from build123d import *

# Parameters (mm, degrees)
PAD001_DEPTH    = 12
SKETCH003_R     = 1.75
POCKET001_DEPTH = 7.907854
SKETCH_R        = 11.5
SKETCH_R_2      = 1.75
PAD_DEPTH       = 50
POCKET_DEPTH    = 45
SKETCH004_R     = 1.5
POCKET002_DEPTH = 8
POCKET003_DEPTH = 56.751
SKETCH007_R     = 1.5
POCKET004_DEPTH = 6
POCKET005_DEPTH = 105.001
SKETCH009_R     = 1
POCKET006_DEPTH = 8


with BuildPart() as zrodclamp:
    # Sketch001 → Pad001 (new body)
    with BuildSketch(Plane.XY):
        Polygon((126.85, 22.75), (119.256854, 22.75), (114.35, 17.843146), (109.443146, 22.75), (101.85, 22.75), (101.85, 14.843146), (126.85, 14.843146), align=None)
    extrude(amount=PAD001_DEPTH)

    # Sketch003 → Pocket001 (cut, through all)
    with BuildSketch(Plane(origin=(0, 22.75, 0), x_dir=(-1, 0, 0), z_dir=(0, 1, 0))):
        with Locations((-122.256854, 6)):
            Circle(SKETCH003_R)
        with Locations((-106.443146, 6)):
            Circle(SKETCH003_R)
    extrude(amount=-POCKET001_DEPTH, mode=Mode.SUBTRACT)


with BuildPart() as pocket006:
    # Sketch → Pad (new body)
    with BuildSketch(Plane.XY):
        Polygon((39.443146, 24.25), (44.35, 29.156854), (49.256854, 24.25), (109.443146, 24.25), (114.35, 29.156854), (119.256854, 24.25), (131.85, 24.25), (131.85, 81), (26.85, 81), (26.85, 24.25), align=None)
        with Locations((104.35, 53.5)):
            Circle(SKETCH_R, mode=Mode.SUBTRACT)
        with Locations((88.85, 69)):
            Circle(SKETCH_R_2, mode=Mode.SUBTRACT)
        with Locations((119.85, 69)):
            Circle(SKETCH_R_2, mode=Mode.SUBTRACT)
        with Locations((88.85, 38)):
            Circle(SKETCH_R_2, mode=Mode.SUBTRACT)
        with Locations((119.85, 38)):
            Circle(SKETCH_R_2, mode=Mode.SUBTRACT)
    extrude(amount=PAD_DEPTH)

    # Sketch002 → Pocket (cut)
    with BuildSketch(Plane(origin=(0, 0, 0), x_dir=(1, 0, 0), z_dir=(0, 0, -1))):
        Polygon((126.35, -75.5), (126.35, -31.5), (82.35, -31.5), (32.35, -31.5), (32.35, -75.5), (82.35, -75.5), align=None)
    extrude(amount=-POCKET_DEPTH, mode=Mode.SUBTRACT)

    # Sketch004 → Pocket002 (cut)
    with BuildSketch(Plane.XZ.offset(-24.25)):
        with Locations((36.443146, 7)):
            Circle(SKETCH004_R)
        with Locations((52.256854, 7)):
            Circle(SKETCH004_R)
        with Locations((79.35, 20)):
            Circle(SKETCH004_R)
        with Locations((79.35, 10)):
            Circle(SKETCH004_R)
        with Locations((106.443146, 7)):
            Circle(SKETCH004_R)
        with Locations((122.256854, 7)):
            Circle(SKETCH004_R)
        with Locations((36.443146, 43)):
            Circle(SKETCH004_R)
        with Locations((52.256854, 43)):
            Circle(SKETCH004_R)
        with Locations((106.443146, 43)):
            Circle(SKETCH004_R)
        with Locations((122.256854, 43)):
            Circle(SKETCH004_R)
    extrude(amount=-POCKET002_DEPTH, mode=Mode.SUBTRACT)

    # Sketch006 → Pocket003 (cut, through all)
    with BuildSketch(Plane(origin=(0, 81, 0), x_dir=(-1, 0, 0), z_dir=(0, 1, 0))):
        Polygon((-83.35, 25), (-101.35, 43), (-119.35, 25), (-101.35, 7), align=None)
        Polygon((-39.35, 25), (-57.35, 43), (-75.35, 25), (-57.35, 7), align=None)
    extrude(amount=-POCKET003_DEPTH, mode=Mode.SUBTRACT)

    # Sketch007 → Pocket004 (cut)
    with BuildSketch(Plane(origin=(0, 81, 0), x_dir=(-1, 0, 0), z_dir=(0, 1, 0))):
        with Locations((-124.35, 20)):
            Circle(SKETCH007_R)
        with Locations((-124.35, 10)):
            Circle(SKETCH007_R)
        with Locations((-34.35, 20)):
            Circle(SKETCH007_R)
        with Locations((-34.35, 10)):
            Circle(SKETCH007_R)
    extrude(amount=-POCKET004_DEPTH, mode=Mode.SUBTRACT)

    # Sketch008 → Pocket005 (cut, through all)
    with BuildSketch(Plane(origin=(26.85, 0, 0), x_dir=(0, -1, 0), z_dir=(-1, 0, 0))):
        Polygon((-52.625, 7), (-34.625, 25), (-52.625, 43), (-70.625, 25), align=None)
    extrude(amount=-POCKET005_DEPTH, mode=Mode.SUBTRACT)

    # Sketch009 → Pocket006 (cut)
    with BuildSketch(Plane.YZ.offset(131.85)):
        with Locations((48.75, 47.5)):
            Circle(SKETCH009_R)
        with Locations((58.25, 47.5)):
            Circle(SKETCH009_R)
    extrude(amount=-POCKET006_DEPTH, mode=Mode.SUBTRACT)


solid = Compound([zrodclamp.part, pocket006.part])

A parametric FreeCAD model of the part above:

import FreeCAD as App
import Part
import Sketcher
from FreeCAD import Vector
Q = App.Units.Quantity


def add_polygon(sketch, points):
    """Adds a closed chain of lines whose ends are joined by coincident constraints."""
    first, n = sketch.GeometryCount, len(points)
    for a, b in zip(points, points[1:] + points[:1]):
        sketch.addGeometry(Part.LineSegment(App.Vector(*a, 0), App.Vector(*b, 0)), False)
    for i in range(n):
        sketch.addConstraint(Sketcher.Constraint("Coincident", first + i, 2, first + (i + 1) % n, 1))

doc = App.newDocument("Part")
body = doc.addObject("PartDesign::Body", "Body")

sketch1 = body.newObject("Sketcher::SketchObject", "Sketch")
sketch1.AttachmentSupport = (doc.getObject("XY_Plane"), [""])
sketch1.MapMode = "FlatFace"
add_polygon(sketch1, [(126.85, 22.75), (119.256854, 22.75), (114.35, 17.843146), (109.443146, 22.75), (101.85, 22.75), (101.85, 14.843146), (126.85, 14.843146)])
sketch1.addConstraint(Sketcher.Constraint("Horizontal", 0))
sketch1.addConstraint(Sketcher.Constraint("Horizontal", 3))
sketch1.addConstraint(Sketcher.Constraint("Vertical", 4))
sketch1.addConstraint(Sketcher.Constraint("Horizontal", 5))
sketch1.addConstraint(Sketcher.Constraint("Vertical", 6))
sketch1.addConstraint(Sketcher.Constraint("Perpendicular", 1, 2))
sketch1.addConstraint(Sketcher.Constraint("Horizontal", 0, 2, 2, 2))
sketch1.addConstraint(Sketcher.Constraint("Equal", 0, 3))
sketch1.addConstraint(Sketcher.Constraint("Equal", 1, 2))
sketch1.addConstraint(Sketcher.Constraint("DistanceX", 5, 1, 5, 2, Q("25 mm")))
sketch1.addConstraint(Sketcher.Constraint("DistanceY", 4, 2, 1, 2, Q("3 mm")))
sketch1.addConstraint(Sketcher.Constraint("DistanceY", -1, 1, 0, 2, Q("22.75 mm")))
sketch1.addConstraint(Sketcher.Constraint("DistanceX", -1, 1, 1, 2, Q("114.35 mm")))
sketch1.addConstraint(Sketcher.Constraint("Distance", 1, Q("6.939339 mm")))
pad1 = body.newObject("PartDesign::Pad", "Pad")
pad1.Profile = sketch1
pad1.Length = 12

sketch2 = body.newObject("Sketcher::SketchObject", "Sketch001")
sketch2.AttachmentSupport = (doc.getObject("XZ_Plane"), [""])
sketch2.MapMode = "FlatFace"
sketch2.AttachmentOffset = App.Placement(Vector(0, 0, -22.75), App.Rotation())
sketch2.addGeometry(Part.Circle(Vector(122.256854, 6, 0), Vector(0, 0, 1), 1.75), False)
sketch2.addGeometry(Part.Circle(Vector(106.443146, 6, 0), Vector(0, 0, 1), 1.75), False)
sketch2.addConstraint(Sketcher.Constraint("Equal", 0, 1))
sketch2.addConstraint(Sketcher.Constraint("Horizontal", 0, 3, 1, 3))
sketch2.addConstraint(Sketcher.Constraint("Diameter", 0, Q("3.5 mm")))
sketch2.addConstraint(Sketcher.Constraint("DistanceY", -1, 1, 0, 3, Q("6 mm")))
sketch2.addConstraint(Sketcher.Constraint("DistanceX", 1, 3, 0, 3, Q("15.813708 mm")))
sketch2.addConstraint(Sketcher.Constraint("DistanceX", -1, 1, 0, 3, Q("122.256854 mm")))
pocket1 = body.newObject("PartDesign::Pocket", "Pocket")
pocket1.Profile = sketch2
pocket1.Type = "ThroughAll"
pocket1.Reversed = True
body2 = doc.addObject("PartDesign::Body", "Body001")

sketch3 = body2.newObject("Sketcher::SketchObject", "Sketch002")
sketch3.AttachmentSupport = (doc.getObject("XY_Plane001"), [""])
sketch3.MapMode = "FlatFace"
add_polygon(sketch3, [(39.443146, 24.25), (44.35, 29.156854), (49.256854, 24.25), (109.443146, 24.25), (114.35, 29.156854), (119.256854, 24.25), (131.85, 24.25), (131.85, 81), (26.85, 81), (26.85, 24.25)])
sketch3.addGeometry(Part.Circle(Vector(88.85, 38, 0), Vector(0, 0, 1), 1.75), False)
sketch3.addGeometry(Part.Circle(Vector(119.85, 38, 0), Vector(0, 0, 1), 1.75), False)
sketch3.addGeometry(Part.Circle(Vector(88.85, 69, 0), Vector(0, 0, 1), 1.75), False)
sketch3.addGeometry(Part.Circle(Vector(104.35, 53.5, 0), Vector(0, 0, 1), 11.5), False)
sketch3.addGeometry(Part.Circle(Vector(119.85, 69, 0), Vector(0, 0, 1), 1.75), False)
sketch3.addConstraint(Sketcher.Constraint("Horizontal", 2))
sketch3.addConstraint(Sketcher.Constraint("Horizontal", 5))
sketch3.addConstraint(Sketcher.Constraint("Vertical", 6))
sketch3.addConstraint(Sketcher.Constraint("Horizontal", 7))
sketch3.addConstraint(Sketcher.Constraint("Vertical", 8))
sketch3.addConstraint(Sketcher.Constraint("Horizontal", 9))
sketch3.addConstraint(Sketcher.Constraint("Equal", 10, 11))
sketch3.addConstraint(Sketcher.Constraint("Equal", 11, 12))
sketch3.addConstraint(Sketcher.Constraint("Equal", 12, 14))
sketch3.addConstraint(Sketcher.Constraint("Perpendicular", 0, 1))
sketch3.addConstraint(Sketcher.Constraint("Perpendicular", 1, 3))
sketch3.addConstraint(Sketcher.Constraint("Perpendicular", 3, 4))
sketch3.addConstraint(Sketcher.Constraint("Horizontal", 10, 3, 11, 3))
sketch3.addConstraint(Sketcher.Constraint("Horizontal", 12, 3, 14, 3))
sketch3.addConstraint(Sketcher.Constraint("Horizontal", 0, 2, 3, 2))
sketch3.addConstraint(Sketcher.Constraint("Horizontal", 2, 2, 4, 2))
sketch3.addConstraint(Sketcher.Constraint("Horizontal", 5, 2, 8, 2))
sketch3.addConstraint(Sketcher.Constraint("Vertical", 10, 3, 12, 3))
sketch3.addConstraint(Sketcher.Constraint("Vertical", 11, 3, 14, 3))
sketch3.addConstraint(Sketcher.Constraint("Equal", 5, 9))
sketch3.addConstraint(Sketcher.Constraint("Equal", 0, 1))
sketch3.addConstraint(Sketcher.Constraint("Diameter", 13, Q("23 mm")))
sketch3.addConstraint(Sketcher.Constraint("Diameter", 10, Q("3.5 mm")))
sketch3.addConstraint(Sketcher.Constraint("DistanceX", 7, 2, 7, 1, Q("105 mm")))
sketch3.addConstraint(Sketcher.Constraint("DistanceY", -1, 1, 10, 3, Q("38 mm")))
sketch3.addConstraint(Sketcher.Constraint("DistanceY", -1, 1, 12, 3, Q("69 mm")))
sketch3.addConstraint(Sketcher.Constraint("DistanceY", -1, 1, 6, 2, Q("81 mm")))
sketch3.addConstraint(Sketcher.Constraint("DistanceX", 10, 3, 11, 3, Q("31 mm")))
sketch3.addConstraint(Sketcher.Constraint("DistanceX", 0, 2, 13, 3, Q("60 mm")))
sketch3.addConstraint(Sketcher.Constraint("DistanceX", 13, 3, 3, 2, Q("10 mm")))
sketch3.addConstraint(Sketcher.Constraint("DistanceX", 11, 3, 5, 2, Q("12 mm")))
sketch3.addConstraint(Sketcher.Constraint("DistanceY", 6, 1, 6, 2, Q("56.75 mm")))
sketch3.addConstraint(Sketcher.Constraint("DistanceY", -1, 1, 13, 3, Q("53.5 mm")))
sketch3.addConstraint(Sketcher.Constraint("DistanceX", -1, 1, 10, 3, Q("88.85 mm")))
sketch3.addConstraint(Sketcher.Constraint("Distance", 0, Q("6.939339 mm")))
pad2 = body2.newObject("PartDesign::Pad", "Pad001")
pad2.Profile = sketch3
pad2.Length = 50

sketch4 = body2.newObject("Sketcher::SketchObject", "Sketch003")
sketch4.AttachmentSupport = (doc.getObject("XY_Plane001"), [""])
sketch4.MapMode = "FlatFace"
add_polygon(sketch4, [(126.35, 75.5), (126.35, 31.5), (32.35, 31.5), (32.35, 75.5)])
sketch4.addConstraint(Sketcher.Constraint("Vertical", 0))
sketch4.addConstraint(Sketcher.Constraint("Horizontal", 1))
sketch4.addConstraint(Sketcher.Constraint("Vertical", 2))
sketch4.addConstraint(Sketcher.Constraint("Horizontal", 3))
sketch4.addConstraint(Sketcher.Constraint("DistanceX", 1, 2, 1, 1, Q("94 mm")))
sketch4.addConstraint(Sketcher.Constraint("DistanceY", 0, 2, 0, 1, Q("44 mm")))
sketch4.addConstraint(Sketcher.Constraint("DistanceY", -1, 1, 0, 2, Q("31.5 mm")))
sketch4.addConstraint(Sketcher.Constraint("DistanceX", -1, 1, 0, 2, Q("126.35 mm")))
pocket2 = body2.newObject("PartDesign::Pocket", "Pocket001")
pocket2.Profile = sketch4
pocket2.Length = 45
pocket2.Reversed = True

sketch5 = body2.newObject("Sketcher::SketchObject", "Sketch004")
sketch5.AttachmentSupport = (doc.getObject("XZ_Plane001"), [""])
sketch5.MapMode = "FlatFace"
sketch5.AttachmentOffset = App.Placement(Vector(0, 0, -24.25), App.Rotation())
sketch5.addGeometry(Part.Circle(Vector(36.443146, 7, 0), Vector(0, 0, 1), 1.5), False)
sketch5.addGeometry(Part.Circle(Vector(52.256854, 7, 0), Vector(0, 0, 1), 1.5), False)
sketch5.addGeometry(Part.Circle(Vector(79.35, 20, 0), Vector(0, 0, 1), 1.5), False)
sketch5.addGeometry(Part.Circle(Vector(79.35, 10, 0), Vector(0, 0, 1), 1.5), False)
sketch5.addGeometry(Part.Circle(Vector(106.443146, 7, 0), Vector(0, 0, 1), 1.5), False)
sketch5.addGeometry(Part.Circle(Vector(122.256854, 7, 0), Vector(0, 0, 1), 1.5), False)
sketch5.addGeometry(Part.Circle(Vector(36.443146, 43, 0), Vector(0, 0, 1), 1.5), False)
sketch5.addGeometry(Part.Circle(Vector(52.256854, 43, 0), Vector(0, 0, 1), 1.5), False)
sketch5.addGeometry(Part.Circle(Vector(106.443146, 43, 0), Vector(0, 0, 1), 1.5), False)
sketch5.addGeometry(Part.Circle(Vector(122.256854, 43, 0), Vector(0, 0, 1), 1.5), False)
sketch5.addConstraint(Sketcher.Constraint("Equal", 0, 1))
sketch5.addConstraint(Sketcher.Constraint("Equal", 1, 2))
sketch5.addConstraint(Sketcher.Constraint("Equal", 2, 3))
sketch5.addConstraint(Sketcher.Constraint("Equal", 3, 4))
sketch5.addConstraint(Sketcher.Constraint("Equal", 4, 5))
sketch5.addConstraint(Sketcher.Constraint("Equal", 5, 6))
sketch5.addConstraint(Sketcher.Constraint("Equal", 6, 7))
sketch5.addConstraint(Sketcher.Constraint("Equal", 7, 8))
sketch5.addConstraint(Sketcher.Constraint("Equal", 8, 9))
sketch5.addConstraint(Sketcher.Constraint("Horizontal", 0, 3, 1, 3))
sketch5.addConstraint(Sketcher.Constraint("Horizontal", 1, 3, 4, 3))
sketch5.addConstraint(Sketcher.Constraint("Horizontal", 4, 3, 5, 3))
sketch5.addConstraint(Sketcher.Constraint("Horizontal", 6, 3, 7, 3))
sketch5.addConstraint(Sketcher.Constraint("Horizontal", 7, 3, 8, 3))
sketch5.addConstraint(Sketcher.Constraint("Horizontal", 8, 3, 9, 3))
sketch5.addConstraint(Sketcher.Constraint("Vertical", 2, 3, 3, 3))
sketch5.addConstraint(Sketcher.Constraint("Vertical", 0, 3, 6, 3))
sketch5.addConstraint(Sketcher.Constraint("Vertical", 1, 3, 7, 3))
sketch5.addConstraint(Sketcher.Constraint("Vertical", 4, 3, 8, 3))
sketch5.addConstraint(Sketcher.Constraint("Vertical", 5, 3, 9, 3))
sketch5.addConstraint(Sketcher.Constraint("Diameter", 0, Q("3 mm")))
sketch5.addConstraint(Sketcher.Constraint("DistanceY", -1, 1, 0, 3, Q("7 mm")))
sketch5.addConstraint(Sketcher.Constraint("DistanceY", -1, 1, 2, 3, Q("20 mm")))
sketch5.addConstraint(Sketcher.Constraint("DistanceY", -1, 1, 3, 3, Q("10 mm")))
sketch5.addConstraint(Sketcher.Constraint("DistanceY", -1, 1, 6, 3, Q("43 mm")))
sketch5.addConstraint(Sketcher.Constraint("DistanceX", 0, 3, 4, 3, Q("70 mm")))
sketch5.addConstraint(Sketcher.Constraint("DistanceX", 1, 3, 5, 3, Q("70 mm")))
sketch5.addConstraint(Sketcher.Constraint("DistanceX", -1, 1, 2, 3, Q("79.35 mm")))
sketch5.addConstraint(Sketcher.Constraint("DistanceX", 4, 3, 5, 3, Q("15.813708 mm")))
sketch5.addConstraint(Sketcher.Constraint("DistanceX", -1, 1, 0, 3, Q("36.443146 mm")))
pocket3 = body2.newObject("PartDesign::Pocket", "Pocket002")
pocket3.Profile = sketch5
pocket3.Length = 8

sketch6 = body2.newObject("Sketcher::SketchObject", "Sketch005")
sketch6.AttachmentSupport = (doc.getObject("XZ_Plane001"), [""])
sketch6.MapMode = "FlatFace"
sketch6.AttachmentOffset = App.Placement(Vector(0, 0, -81), App.Rotation())
add_polygon(sketch6, [(83.35, 25), (101.35, 43), (119.35, 25), (101.35, 7)])
add_polygon(sketch6, [(39.35, 25), (57.35, 43), (75.35, 25), (57.35, 7)])
sketch6.addConstraint(Sketcher.Constraint("Perpendicular", 0, 1))
sketch6.addConstraint(Sketcher.Constraint("Perpendicular", 1, 2))
sketch6.addConstraint(Sketcher.Constraint("Perpendicular", 2, 3))
sketch6.addConstraint(Sketcher.Constraint("Perpendicular", 3, 4))
sketch6.addConstraint(Sketcher.Constraint("Perpendicular", 4, 5))
sketch6.addConstraint(Sketcher.Constraint("Perpendicular", 5, 6))
sketch6.addConstraint(Sketcher.Constraint("Perpendicular", 6, 7))
sketch6.addConstraint(Sketcher.Constraint("Horizontal", 1, 2, 3, 2))
sketch6.addConstraint(Sketcher.Constraint("Horizontal", 0, 2, 4, 2))
sketch6.addConstraint(Sketcher.Constraint("Horizontal", 3, 2, 5, 2))
sketch6.addConstraint(Sketcher.Constraint("Horizontal", 2, 2, 6, 2))
sketch6.addConstraint(Sketcher.Constraint("Vertical", 0, 2, 2, 2))
sketch6.addConstraint(Sketcher.Constraint("DistanceY", -1, 1, 0, 2, Q("43 mm")))
sketch6.addConstraint(Sketcher.Constraint("DistanceY", -1, 1, 1, 2, Q("25 mm")))
sketch6.addConstraint(Sketcher.Constraint("DistanceX", 4, 2, 3, 2, Q("26 mm")))
sketch6.addConstraint(Sketcher.Constraint("DistanceX", -1, 1, 0, 2, Q("101.35 mm")))
pocket4 = body2.newObject("PartDesign::Pocket", "Pocket003")
pocket4.Profile = sketch6
pocket4.Type = "ThroughAll"
pocket4.Reversed = True

sketch7 = body2.newObject("Sketcher::SketchObject", "Sketch006")
sketch7.AttachmentSupport = (doc.getObject("XZ_Plane001"), [""])
sketch7.MapMode = "FlatFace"
sketch7.AttachmentOffset = App.Placement(Vector(0, 0, -81), App.Rotation())
sketch7.addGeometry(Part.Circle(Vector(124.35, 20, 0), Vector(0, 0, 1), 1.5), False)
sketch7.addGeometry(Part.Circle(Vector(124.35, 10, 0), Vector(0, 0, 1), 1.5), False)
sketch7.addGeometry(Part.Circle(Vector(34.35, 20, 0), Vector(0, 0, 1), 1.5), False)
sketch7.addGeometry(Part.Circle(Vector(34.35, 10, 0), Vector(0, 0, 1), 1.5), False)
sketch7.addConstraint(Sketcher.Constraint("Equal", 0, 1))
sketch7.addConstraint(Sketcher.Constraint("Equal", 1, 2))
sketch7.addConstraint(Sketcher.Constraint("Equal", 2, 3))
sketch7.addConstraint(Sketcher.Constraint("Horizontal", 0, 3, 2, 3))
sketch7.addConstraint(Sketcher.Constraint("Horizontal", 1, 3, 3, 3))
sketch7.addConstraint(Sketcher.Constraint("Vertical", 0, 3, 1, 3))
sketch7.addConstraint(Sketcher.Constraint("Vertical", 2, 3, 3, 3))
sketch7.addConstraint(Sketcher.Constraint("Diameter", 0, Q("3 mm")))
sketch7.addConstraint(Sketcher.Constraint("DistanceY", -1, 1, 0, 3, Q("20 mm")))
sketch7.addConstraint(Sketcher.Constraint("DistanceY", -1, 1, 1, 3, Q("10 mm")))
sketch7.addConstraint(Sketcher.Constraint("DistanceX", 2, 3, 0, 3, Q("90 mm")))
sketch7.addConstraint(Sketcher.Constraint("DistanceX", -1, 1, 0, 3, Q("124.35 mm")))
pocket5 = body2.newObject("PartDesign::Pocket", "Pocket004")
pocket5.Profile = sketch7
pocket5.Length = 6
pocket5.Reversed = True

sketch8 = body2.newObject("Sketcher::SketchObject", "Sketch007")
sketch8.AttachmentSupport = (doc.getObject("YZ_Plane001"), [""])
sketch8.MapMode = "FlatFace"
sketch8.AttachmentOffset = App.Placement(Vector(0, 0, 26.85), App.Rotation())
add_polygon(sketch8, [(52.625, 7), (34.625, 25), (52.625, 43), (70.625, 25)])
sketch8.addConstraint(Sketcher.Constraint("Perpendicular", 0, 1))
sketch8.addConstraint(Sketcher.Constraint("Perpendicular", 1, 2))
sketch8.addConstraint(Sketcher.Constraint("Perpendicular", 2, 3))
sketch8.addConstraint(Sketcher.Constraint("Horizontal", 0, 2, 2, 2))
sketch8.addConstraint(Sketcher.Constraint("Vertical", 1, 2, 3, 2))
sketch8.addConstraint(Sketcher.Constraint("DistanceY", -1, 1, 0, 2, Q("25 mm")))
sketch8.addConstraint(Sketcher.Constraint("DistanceY", -1, 1, 1, 2, Q("43 mm")))
sketch8.addConstraint(Sketcher.Constraint("DistanceX", -1, 1, 0, 2, Q("34.625 mm")))
pocket6 = body2.newObject("PartDesign::Pocket", "Pocket005")
pocket6.Profile = sketch8
pocket6.Type = "ThroughAll"
pocket6.Reversed = True

sketch9 = body2.newObject("Sketcher::SketchObject", "Sketch008")
sketch9.AttachmentSupport = (doc.getObject("YZ_Plane001"), [""])
sketch9.MapMode = "FlatFace"
sketch9.AttachmentOffset = App.Placement(Vector(0, 0, 131.85), App.Rotation())
sketch9.addGeometry(Part.Circle(Vector(48.75, 47.5, 0), Vector(0, 0, 1), 1), False)
sketch9.addGeometry(Part.Circle(Vector(58.25, 47.5, 0), Vector(0, 0, 1), 1), False)
sketch9.addConstraint(Sketcher.Constraint("Equal", 0, 1))
sketch9.addConstraint(Sketcher.Constraint("Horizontal", 0, 3, 1, 3))
sketch9.addConstraint(Sketcher.Constraint("Diameter", 0, Q("2 mm")))
sketch9.addConstraint(Sketcher.Constraint("DistanceY", -1, 1, 0, 3, Q("47.5 mm")))
sketch9.addConstraint(Sketcher.Constraint("DistanceX", 0, 3, 1, 3, Q("9.5 mm")))
sketch9.addConstraint(Sketcher.Constraint("DistanceX", -1, 1, 0, 3, Q("48.75 mm")))
pocket7 = body2.newObject("PartDesign::Pocket", "Pocket006")
pocket7.Profile = sketch9
pocket7.Length = 8

doc.recompute()
